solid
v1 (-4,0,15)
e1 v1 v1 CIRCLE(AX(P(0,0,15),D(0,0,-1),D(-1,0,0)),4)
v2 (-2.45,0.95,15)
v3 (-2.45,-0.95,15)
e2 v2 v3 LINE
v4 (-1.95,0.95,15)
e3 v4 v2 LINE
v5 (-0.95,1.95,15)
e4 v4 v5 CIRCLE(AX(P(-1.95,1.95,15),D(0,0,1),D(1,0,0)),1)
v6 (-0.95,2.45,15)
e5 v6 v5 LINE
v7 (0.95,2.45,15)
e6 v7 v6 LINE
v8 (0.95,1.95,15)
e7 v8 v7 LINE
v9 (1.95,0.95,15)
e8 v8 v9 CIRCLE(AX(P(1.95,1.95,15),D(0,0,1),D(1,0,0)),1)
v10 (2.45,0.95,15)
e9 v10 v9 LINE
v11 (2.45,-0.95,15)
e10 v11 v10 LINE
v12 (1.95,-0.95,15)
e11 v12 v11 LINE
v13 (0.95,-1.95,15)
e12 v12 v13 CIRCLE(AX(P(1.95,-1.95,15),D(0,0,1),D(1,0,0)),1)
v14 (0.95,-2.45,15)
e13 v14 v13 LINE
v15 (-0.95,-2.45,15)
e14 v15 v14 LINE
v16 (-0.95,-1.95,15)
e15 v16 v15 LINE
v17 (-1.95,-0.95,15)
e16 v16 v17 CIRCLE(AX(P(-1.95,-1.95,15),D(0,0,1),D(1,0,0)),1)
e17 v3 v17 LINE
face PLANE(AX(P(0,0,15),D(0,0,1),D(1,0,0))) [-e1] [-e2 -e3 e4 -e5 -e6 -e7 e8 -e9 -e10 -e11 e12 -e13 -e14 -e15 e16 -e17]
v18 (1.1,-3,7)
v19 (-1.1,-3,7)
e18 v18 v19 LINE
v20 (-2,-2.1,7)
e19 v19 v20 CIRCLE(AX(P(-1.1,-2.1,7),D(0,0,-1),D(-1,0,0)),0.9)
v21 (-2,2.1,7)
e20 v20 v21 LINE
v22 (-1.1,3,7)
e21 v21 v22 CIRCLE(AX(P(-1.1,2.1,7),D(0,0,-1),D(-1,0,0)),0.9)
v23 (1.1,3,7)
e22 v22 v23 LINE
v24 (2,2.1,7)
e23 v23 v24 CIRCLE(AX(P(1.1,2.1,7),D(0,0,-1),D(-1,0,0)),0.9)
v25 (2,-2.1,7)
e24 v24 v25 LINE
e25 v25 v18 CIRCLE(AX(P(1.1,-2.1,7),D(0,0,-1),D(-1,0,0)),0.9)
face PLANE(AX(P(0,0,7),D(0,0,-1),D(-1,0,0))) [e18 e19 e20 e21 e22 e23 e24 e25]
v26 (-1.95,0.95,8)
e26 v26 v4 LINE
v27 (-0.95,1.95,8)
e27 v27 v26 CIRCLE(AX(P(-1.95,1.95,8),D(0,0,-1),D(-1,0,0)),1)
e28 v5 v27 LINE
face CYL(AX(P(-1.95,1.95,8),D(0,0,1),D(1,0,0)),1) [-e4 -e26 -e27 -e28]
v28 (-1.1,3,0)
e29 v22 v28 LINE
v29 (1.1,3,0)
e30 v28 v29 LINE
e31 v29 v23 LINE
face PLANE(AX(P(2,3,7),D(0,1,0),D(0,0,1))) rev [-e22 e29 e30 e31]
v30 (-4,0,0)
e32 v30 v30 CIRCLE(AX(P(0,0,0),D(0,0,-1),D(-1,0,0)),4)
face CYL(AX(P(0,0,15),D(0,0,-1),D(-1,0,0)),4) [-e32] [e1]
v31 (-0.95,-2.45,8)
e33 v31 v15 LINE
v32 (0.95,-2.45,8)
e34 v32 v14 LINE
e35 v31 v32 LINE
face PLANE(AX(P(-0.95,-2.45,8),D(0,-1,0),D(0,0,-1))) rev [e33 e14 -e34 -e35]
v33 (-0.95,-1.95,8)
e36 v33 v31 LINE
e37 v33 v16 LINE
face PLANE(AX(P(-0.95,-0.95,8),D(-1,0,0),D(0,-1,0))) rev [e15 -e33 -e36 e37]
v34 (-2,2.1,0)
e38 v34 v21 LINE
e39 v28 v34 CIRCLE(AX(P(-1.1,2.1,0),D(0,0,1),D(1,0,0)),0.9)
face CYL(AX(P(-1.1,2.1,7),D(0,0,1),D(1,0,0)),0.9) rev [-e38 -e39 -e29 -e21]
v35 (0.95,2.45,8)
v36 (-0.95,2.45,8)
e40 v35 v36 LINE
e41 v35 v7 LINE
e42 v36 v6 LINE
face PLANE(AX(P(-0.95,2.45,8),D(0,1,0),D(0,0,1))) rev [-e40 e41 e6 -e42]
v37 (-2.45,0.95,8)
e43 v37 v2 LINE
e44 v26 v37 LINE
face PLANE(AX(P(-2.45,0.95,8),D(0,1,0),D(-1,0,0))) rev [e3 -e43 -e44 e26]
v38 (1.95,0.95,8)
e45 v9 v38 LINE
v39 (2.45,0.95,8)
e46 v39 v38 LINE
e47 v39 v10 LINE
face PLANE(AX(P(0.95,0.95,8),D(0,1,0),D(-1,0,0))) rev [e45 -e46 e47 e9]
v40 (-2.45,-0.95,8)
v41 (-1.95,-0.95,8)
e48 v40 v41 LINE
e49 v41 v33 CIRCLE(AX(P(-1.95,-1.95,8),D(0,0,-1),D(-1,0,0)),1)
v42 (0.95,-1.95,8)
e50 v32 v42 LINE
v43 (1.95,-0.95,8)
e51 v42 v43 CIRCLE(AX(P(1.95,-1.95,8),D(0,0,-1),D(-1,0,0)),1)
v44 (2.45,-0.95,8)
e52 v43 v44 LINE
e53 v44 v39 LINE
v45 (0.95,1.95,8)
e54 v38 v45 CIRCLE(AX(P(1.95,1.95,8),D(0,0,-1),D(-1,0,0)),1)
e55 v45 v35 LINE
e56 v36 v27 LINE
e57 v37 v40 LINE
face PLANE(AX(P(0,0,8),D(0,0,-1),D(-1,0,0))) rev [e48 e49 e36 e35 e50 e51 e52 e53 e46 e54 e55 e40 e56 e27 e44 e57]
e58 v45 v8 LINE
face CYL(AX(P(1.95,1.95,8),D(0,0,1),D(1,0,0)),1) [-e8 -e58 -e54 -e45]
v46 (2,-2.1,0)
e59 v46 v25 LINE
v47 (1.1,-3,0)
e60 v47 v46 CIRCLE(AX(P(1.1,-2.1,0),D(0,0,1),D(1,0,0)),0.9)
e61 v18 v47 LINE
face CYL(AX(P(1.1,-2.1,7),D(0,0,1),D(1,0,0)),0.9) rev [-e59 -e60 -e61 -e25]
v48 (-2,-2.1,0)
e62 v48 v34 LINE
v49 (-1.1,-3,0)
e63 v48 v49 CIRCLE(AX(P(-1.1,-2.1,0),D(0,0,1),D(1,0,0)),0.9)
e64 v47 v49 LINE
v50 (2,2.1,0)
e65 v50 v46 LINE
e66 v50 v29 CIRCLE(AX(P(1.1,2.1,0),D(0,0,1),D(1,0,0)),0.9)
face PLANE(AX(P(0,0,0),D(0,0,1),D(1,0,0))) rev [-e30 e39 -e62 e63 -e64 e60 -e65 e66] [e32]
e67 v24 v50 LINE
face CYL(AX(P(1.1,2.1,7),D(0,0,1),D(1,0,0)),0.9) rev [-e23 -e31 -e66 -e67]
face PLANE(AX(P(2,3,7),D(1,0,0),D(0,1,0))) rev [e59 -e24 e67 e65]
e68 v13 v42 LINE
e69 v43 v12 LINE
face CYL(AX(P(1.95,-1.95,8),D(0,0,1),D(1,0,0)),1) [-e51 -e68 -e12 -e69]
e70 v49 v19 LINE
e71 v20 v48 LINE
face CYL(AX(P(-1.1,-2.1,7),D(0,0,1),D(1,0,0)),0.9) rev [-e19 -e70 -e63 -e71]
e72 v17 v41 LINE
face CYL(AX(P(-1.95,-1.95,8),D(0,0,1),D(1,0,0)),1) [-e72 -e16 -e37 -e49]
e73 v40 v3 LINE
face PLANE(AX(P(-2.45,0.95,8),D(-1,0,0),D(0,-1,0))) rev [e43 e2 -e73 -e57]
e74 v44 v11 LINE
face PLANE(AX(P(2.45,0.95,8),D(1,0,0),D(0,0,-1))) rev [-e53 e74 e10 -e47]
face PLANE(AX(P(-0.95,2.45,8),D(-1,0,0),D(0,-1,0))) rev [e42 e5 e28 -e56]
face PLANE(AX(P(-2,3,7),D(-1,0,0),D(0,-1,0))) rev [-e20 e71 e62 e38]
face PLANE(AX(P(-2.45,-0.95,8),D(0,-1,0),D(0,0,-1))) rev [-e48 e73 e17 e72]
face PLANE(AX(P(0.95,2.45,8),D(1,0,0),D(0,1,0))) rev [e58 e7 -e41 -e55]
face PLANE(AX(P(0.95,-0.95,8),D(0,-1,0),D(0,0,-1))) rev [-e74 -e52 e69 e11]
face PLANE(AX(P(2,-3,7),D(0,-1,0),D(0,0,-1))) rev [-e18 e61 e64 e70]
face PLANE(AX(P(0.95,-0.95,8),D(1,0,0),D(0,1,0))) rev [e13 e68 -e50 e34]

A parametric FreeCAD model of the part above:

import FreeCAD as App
import Part
import Sketcher
Q = App.Units.Quantity


def edges_at(feature, points):
    """Names of the edges that pass closest to the given points."""
    edges = feature.Shape.Edges
    near = lambda p: min(range(len(edges)), key=lambda i: edges[i].distToShape(Part.Vertex(*p))[0])
    return sorted({f"Edge{near(p) + 1}" for p in points})

doc = App.newDocument("Part")
body = doc.addObject("PartDesign::Body", "Body")

# Sketch on XY plane
sketch1 = body.newObject("Sketcher::SketchObject", "Sketch")
sketch1.AttachmentSupport = (doc.getObject("XY_Plane"), [""])
sketch1.MapMode = "FlatFace"
sketch1.addGeometry(Part.Circle(App.Vector(0, 0, 0), App.Vector(0, 0, 1), 4.5), False)
sketch1.addConstraint([
    Sketcher.Constraint("Coincident", 0, 3, -1, 1),
    Sketcher.Constraint("Diameter", 0, Q("9 mm")),
])
pad1 = body.newObject("PartDesign::Pad", "Pad")
pad1.Profile = sketch1
pad1.Length = 15

# Sketch on XY plane
sketch2 = body.newObject("Sketcher::SketchObject", "Sketch001")
sketch2.AttachmentSupport = (doc.getObject("XY_Plane"), [""])
sketch2.MapMode = "FlatFace"
sketch2.addGeometry([
    Part.LineSegment(App.Vector(2, 3, 0), App.Vector(2, -3, 0)),
    Part.LineSegment(App.Vector(2, -3, 0), App.Vector(-2, -3, 0)),
    Part.LineSegment(App.Vector(-2, -3, 0), App.Vector(-2, 3, 0)),
    Part.LineSegment(App.Vector(-2, 3, 0), App.Vector(2, 3, 0)),
], False)
sketch2.addConstraint([
    Sketcher.Constraint("Coincident", 0, 2, 1, 1),
    Sketcher.Constraint("Coincident", 1, 2, 2, 1),
    Sketcher.Constraint("Coincident", 2, 2, 3, 1),
    Sketcher.Constraint("Coincident", 3, 2, 0, 1),
    Sketcher.Constraint("Vertical", 0),
    Sketcher.Constraint("Horizontal", 1),
    Sketcher.Constraint("Vertical", 2),
    Sketcher.Constraint("Horizontal", 3),
    Sketcher.Constraint("Symmetric", 0, 2, 2, 2, -1, 1),
    Sketcher.Constraint("DistanceX", 1, 2, 1, 1, Q("4 mm")),
    Sketcher.Constraint("DistanceY", 0, 2, 0, 1, Q("6 mm")),
])
pocket1 = body.newObject("PartDesign::Pocket", "Pocket")
pocket1.Profile = sketch2
pocket1.Length = 7
pocket1.Reversed = True

# Sketch on XY plane
sketch3 = body.newObject("Sketcher::SketchObject", "Sketch002")
sketch3.AttachmentSupport = (doc.getObject("XY_Plane"), [""])
sketch3.MapMode = "FlatFace"
sketch3.AttachmentOffset = App.Placement(App.Vector(0, 0, 15), App.Rotation())
sketch3.addGeometry([
    Part.LineSegment(App.Vector(-0.95, -0.95, 0), App.Vector(-0.95, -2.45, 0)),  # 0
    Part.LineSegment(App.Vector(-0.95, -2.45, 0), App.Vector(0.95, -2.45, 0)),  # 1
    Part.LineSegment(App.Vector(0.95, -2.45, 0), App.Vector(0.95, -0.95, 0)),  # 2
    Part.LineSegment(App.Vector(0.95, -0.95, 0), App.Vector(2.45, -0.95, 0)),  # 3
    Part.LineSegment(App.Vector(2.45, -0.95, 0), App.Vector(2.45, 0.95, 0)),  # 4
    Part.LineSegment(App.Vector(2.45, 0.95, 0), App.Vector(0.95, 0.95, 0)),  # 5
    Part.LineSegment(App.Vector(0.95, 0.95, 0), App.Vector(0.95, 2.45, 0)),  # 6
    Part.LineSegment(App.Vector(0.95, 2.45, 0), App.Vector(-0.95, 2.45, 0)),  # 7
    Part.LineSegment(App.Vector(-0.95, 2.45, 0), App.Vector(-0.95, 0.95, 0)),  # 8
    Part.LineSegment(App.Vector(-0.95, 0.95, 0), App.Vector(-2.45, 0.95, 0)),  # 9
    Part.LineSegment(App.Vector(-2.45, 0.95, 0), App.Vector(-2.45, -0.95, 0)),  # 10
    Part.LineSegment(App.Vector(-2.45, -0.95, 0), App.Vector(-0.95, -0.95, 0)),  # 11
], False)
sketch3.addConstraint([
    Sketcher.Constraint("Coincident", 0, 2, 1, 1),
    Sketcher.Constraint("Coincident", 1, 2, 2, 1),
    Sketcher.Constraint("Coincident", 2, 2, 3, 1),
    Sketcher.Constraint("Coincident", 3, 2, 4, 1),
    Sketcher.Constraint("Coincident", 4, 2, 5, 1),
    Sketcher.Constraint("Coincident", 5, 2, 6, 1),
    Sketcher.Constraint("Coincident", 6, 2, 7, 1),
    Sketcher.Constraint("Coincident", 7, 2, 8, 1),
    Sketcher.Constraint("Coincident", 8, 2, 9, 1),
    Sketcher.Constraint("Coincident", 9, 2, 10, 1),
    Sketcher.Constraint("Coincident", 10, 2, 11, 1),
    Sketcher.Constraint("Coincident", 11, 2, 0, 1),
    Sketcher.Constraint("Vertical", 0),
    Sketcher.Constraint("Horizontal", 1),
    Sketcher.Constraint("Vertical", 2),
    Sketcher.Constraint("Horizontal", 3),
    Sketcher.Constraint("Vertical", 4),
    Sketcher.Constraint("Horizontal", 5),
    Sketcher.Constraint("Vertical", 6),
    Sketcher.Constraint("Horizontal", 7),
    Sketcher.Constraint("Vertical", 8),
    Sketcher.Constraint("Horizontal", 9),
    Sketcher.Constraint("Vertical", 10),
    Sketcher.Constraint("Horizontal", 11),
    Sketcher.Constraint("Symmetric", 0, 2, 6, 2, -1, 1),
    Sketcher.Constraint("Symmetric", 2, 2, 8, 2, -1, 1),
    Sketcher.Constraint("Symmetric", 4, 2, 10, 2, -1, 1),
    Sketcher.Constraint("Symmetric", 5, 2, 8, 2, -2),
    Sketcher.Constraint("Equal", 11, 0),
    Sketcher.Constraint("Equal", 7, 4),
    Sketcher.Constraint("DistanceX", 1, 1, 1, 2, Q("1.9 mm")),
    Sketcher.Constraint("DistanceX", 3, 1, 3, 2, Q("1.5 mm")),
])
pocket2 = body.newObject("PartDesign::Pocket", "Pocket001")
pocket2.Profile = sketch3
pocket2.Length = 7
doc.recompute()

fillet = body.newObject("PartDesign::Fillet", "Fillet")
fillet.Base = (pocket2, edges_at(pocket2, [
    (0.95, -0.95, 11.5),
    (-0.95, -0.95, 11.5),
    (-0.95, 0.95, 11.5),
    (0.95, 0.95, 11.5),
]))
fillet.Radius = 1
doc.recompute()

fillet2 = body.newObject("PartDesign::Fillet", "Fillet001")
fillet2.Base = (fillet, edges_at(fillet, [
    (-2, 3, 3.5),
    (-2, -3, 3.5),
    (2, -3, 3.5),
    (2, 3, 3.5),
]))
fillet2.Radius = 0.9

# Sketch on XY plane
sketch4 = body.newObject("Sketcher::SketchObject", "Sketch003")
sketch4.AttachmentSupport = (doc.getObject("XY_Plane"), [""])
sketch4.MapMode = "FlatFace"
sketch4.addGeometry([
    Part.Circle(App.Vector(0, 0, 0), App.Vector(0, 0, 1), 4.5),
    Part.Circle(App.Vector(0, 0, 0), App.Vector(0, 0, 1), 4),
], False)
sketch4.addConstraint([
    Sketcher.Constraint("Coincident", 0, 3, -1, 1),
    Sketcher.Constraint("Coincident", 1, 3, -1, 1),
    Sketcher.Constraint("Diameter", 0, Q("9 mm")),
    Sketcher.Constraint("Diameter", 1, Q("8 mm")),
])
pocket3 = body.newObject("PartDesign::Pocket", "Pocket002")
pocket3.Profile = sketch4
pocket3.Length = 15
pocket3.Reversed = True

# Sketch on XY plane
sketch5 = body.newObject("Sketcher::SketchObject", "Sketch004")
sketch5.AttachmentSupport = (doc.getObject("XY_Plane"), [""])
sketch5.MapMode = "FlatFace"
sketch5.addGeometry([
    Part.LineSegment(App.Vector(4.66451, 4.341919, 0), App.Vector(4.66451, -4.341919, 0)),  # 0
    Part.LineSegment(App.Vector(4.66451, -4.341919, 0), App.Vector(-4.66451, -4.341919, 0)),  # 1
    Part.LineSegment(App.Vector(-4.66451, -4.341919, 0), App.Vector(-4.66451, 4.341919, 0)),  # 2
    Part.LineSegment(App.Vector(-4.66451, 4.341919, 0), App.Vector(4.66451, 4.341919, 0)),  # 3
    Part.LineSegment(App.Vector(-2.5, -3.5, 0), App.Vector(2.5, -3.5, 0)),  # 4
    Part.LineSegment(App.Vector(2.5, -3.5, 0), App.Vector(2.5, 3.5, 0)),  # 5
    Part.LineSegment(App.Vector(2.5, 3.5, 0), App.Vector(-2.5, 3.5, 0)),  # 6
    Part.LineSegment(App.Vector(-2.5, 3.5, 0), App.Vector(-2.5, -3.5, 0)),  # 7
], False)
sketch5.addConstraint([
    Sketcher.Constraint("Coincident", 0, 2, 1, 1),
    Sketcher.Constraint("Coincident", 1, 2, 2, 1),
    Sketcher.Constraint("Coincident", 2, 2, 3, 1),
    Sketcher.Constraint("Coincident", 3, 2, 0, 1),
    Sketcher.Constraint("Coincident", 4, 2, 5, 1),
    Sketcher.Constraint("Coincident", 5, 2, 6, 1),
    Sketcher.Constraint("Coincident", 6, 2, 7, 1),
    Sketcher.Constraint("Coincident", 7, 2, 4, 1),
    Sketcher.Constraint("Vertical", 0),
    Sketcher.Constraint("Horizontal", 1),
    Sketcher.Constraint("Vertical", 2),
    Sketcher.Constraint("Horizontal", 3),
    Sketcher.Constraint("Horizontal", 4),
    Sketcher.Constraint("Vertical", 5),
    Sketcher.Constraint("Horizontal", 6),
    Sketcher.Constraint("Vertical", 7),
    Sketcher.Constraint("Symmetric", 0, 2, 2, 2, -1, 1),
    Sketcher.Constraint("Symmetric", 4, 2, 6, 2, -1, 1),
    Sketcher.Constraint("DistanceX", 4, 1, 4, 2, Q("5 mm")),
    Sketcher.Constraint("DistanceY", 5, 1, 5, 2, Q("7 mm")),
    Sketcher.Constraint("DistanceX", 1, 2, 1, 1, Q("9.329019 mm")),
    Sketcher.Constraint("DistanceY", 0, 2, 0, 1, Q("8.683839 mm")),
])
pocket4 = body.newObject("PartDesign::Pocket", "Pocket003")
pocket4.Profile = sketch5
pocket4.Length = 7
pocket4.Reversed = True

# Sketch on XY plane
sketch6 = body.newObject("Sketcher::SketchObject", "Sketch005")
sketch6.AttachmentSupport = (doc.getObject("XY_Plane"), [""])
sketch6.MapMode = "FlatFace"
sketch6.addGeometry([
    Part.Circle(App.Vector(0, 0, 0), App.Vector(0, 0, 1), 4),
    Part.Circle(App.Vector(0, 0, 0), App.Vector(0, 0, 1), 3.5),
], False)
sketch6.addConstraint([
    Sketcher.Constraint("Coincident", 0, 3, -1, 1),
    Sketcher.Constraint("Coincident", 1, 3, -1, 1),
    Sketcher.Constraint("Diameter", 0, Q("8 mm")),
    Sketcher.Constraint("Diameter", 1, Q("7 mm")),
])
pad2 = body.newObject("PartDesign::Pad", "Pad001")
pad2.Profile = sketch6
pad2.Length = 15

# Sketch on YZ plane
sketch7 = body.newObject("Sketcher::SketchObject", "Sketch006")
sketch7.AttachmentSupport = (doc.getObject("YZ_Plane"), [""])
sketch7.MapMode = "FlatFace"
sketch7.AttachmentOffset = App.Placement(App.Vector(0, 0, 2.5), App.Rotation())
sketch7.addGeometry([
    Part.LineSegment(App.Vector(2.44949, 7.8, 0), App.Vector(-2.44949, 7.8, 0)),
    Part.LineSegment(App.Vector(-2.44949, 7.8, 0), App.Vector(-2.44949, 0, 0)),
    Part.LineSegment(App.Vector(-2.44949, 0, 0), App.Vector(2.44949, 0, 0)),
    Part.LineSegment(App.Vector(2.44949, 0, 0), App.Vector(2.44949, 7.8, 0)),
], False)
sketch7.addConstraint([
    Sketcher.Constraint("Coincident", 0, 2, 1, 1),
    Sketcher.Constraint("Coincident", 1, 2, 2, 1),
    Sketcher.Constraint("Coincident", 2, 2, 3, 1),
    Sketcher.Constraint("Coincident", 3, 2, 0, 1),
    Sketcher.Constraint("Horizontal", 0),
    Sketcher.Constraint("Vertical", 1),
    Sketcher.Constraint("Horizontal", 2),
    Sketcher.Constraint("Vertical", 3),
    Sketcher.Constraint("Symmetric", 1, 2, 2, 2, -1, 1),
    Sketcher.Constraint("DistanceY", 1, 2, 1, 1, Q("7.8 mm")),
    Sketcher.Constraint("DistanceX", 0, 2, 0, 1, Q("4.898979 mm")),
])
pad3 = body.newObject("PartDesign::Pad", "Pad002")
pad3.Profile = sketch7
pad3.Length = 1

# Sketch on YZ plane
sketch8 = body.newObject("Sketcher::SketchObject", "Sketch007")
sketch8.AttachmentSupport = (doc.getObject("YZ_Plane"), [""])
sketch8.MapMode = "FlatFace"
sketch8.AttachmentOffset = App.Placement(App.Vector(0, 0, -2.5), App.Rotation())
sketch8.addGeometry([
    Part.LineSegment(App.Vector(2.44949, 0, 0), App.Vector(-2.55051, 0, 0)),
    Part.LineSegment(App.Vector(-2.55051, 0, 0), App.Vector(-2.55051, 7.7, 0)),
    Part.LineSegment(App.Vector(-2.55051, 7.7, 0), App.Vector(2.44949, 7.7, 0)),
    Part.LineSegment(App.Vector(2.44949, 7.7, 0), App.Vector(2.44949, 0, 0)),
], False)
sketch8.addConstraint([
    Sketcher.Constraint("Coincident", 0, 2, 1, 1),
    Sketcher.Constraint("Coincident", 1, 2, 2, 1),
    Sketcher.Constraint("Coincident", 2, 2, 3, 1),
    Sketcher.Constraint("Coincident", 3, 2, 0, 1),
    Sketcher.Constraint("Horizontal", 0),
    Sketcher.Constraint("Vertical", 1),
    Sketcher.Constraint("Horizontal", 2),
    Sketcher.Constraint("Vertical", 3),
    Sketcher.Constraint("PointOnObject", 0, 2, -1),
    Sketcher.Constraint("DistanceX", 0, 2, 0, 1, Q("5 mm")),
    Sketcher.Constraint("DistanceY", 1, 1, 1, 2, Q("7.7 mm")),
    Sketcher.Constraint("DistanceX", 0, 2, -1, 1, Q("2.55051 mm")),
])
pad4 = body.newObject("PartDesign::Pad", "Pad003")
pad4.Profile = sketch8
pad4.Length = 1
pad4.Reversed = True

# Sketch on XY plane
sketch9 = body.newObject("Sketcher::SketchObject", "Sketch008")
sketch9.AttachmentSupport = (doc.getObject("XY_Plane"), [""])
sketch9.MapMode = "FlatFace"
sketch9.addGeometry([
    Part.Circle(App.Vector(0, 0, 0), App.Vector(0, 0, 1), 4.498847),
    Part.Circle(App.Vector(0, 0, 0), App.Vector(0, 0, 1), 4),
], False)
sketch9.addConstraint([
    Sketcher.Constraint("Coincident", 0, 3, -1, 1),
    Sketcher.Constraint("Coincident", 1, 3, -1, 1),
    Sketcher.Constraint("Diameter", 1, Q("8 mm")),
    Sketcher.Constraint("Diameter", 0, Q("8.997693 mm")),
])
pocket5 = body.newObject("PartDesign::Pocket", "Pocket004")
pocket5.Profile = sketch9
pocket5.Length = 21
pocket5.Reversed = True

doc.recompute()
